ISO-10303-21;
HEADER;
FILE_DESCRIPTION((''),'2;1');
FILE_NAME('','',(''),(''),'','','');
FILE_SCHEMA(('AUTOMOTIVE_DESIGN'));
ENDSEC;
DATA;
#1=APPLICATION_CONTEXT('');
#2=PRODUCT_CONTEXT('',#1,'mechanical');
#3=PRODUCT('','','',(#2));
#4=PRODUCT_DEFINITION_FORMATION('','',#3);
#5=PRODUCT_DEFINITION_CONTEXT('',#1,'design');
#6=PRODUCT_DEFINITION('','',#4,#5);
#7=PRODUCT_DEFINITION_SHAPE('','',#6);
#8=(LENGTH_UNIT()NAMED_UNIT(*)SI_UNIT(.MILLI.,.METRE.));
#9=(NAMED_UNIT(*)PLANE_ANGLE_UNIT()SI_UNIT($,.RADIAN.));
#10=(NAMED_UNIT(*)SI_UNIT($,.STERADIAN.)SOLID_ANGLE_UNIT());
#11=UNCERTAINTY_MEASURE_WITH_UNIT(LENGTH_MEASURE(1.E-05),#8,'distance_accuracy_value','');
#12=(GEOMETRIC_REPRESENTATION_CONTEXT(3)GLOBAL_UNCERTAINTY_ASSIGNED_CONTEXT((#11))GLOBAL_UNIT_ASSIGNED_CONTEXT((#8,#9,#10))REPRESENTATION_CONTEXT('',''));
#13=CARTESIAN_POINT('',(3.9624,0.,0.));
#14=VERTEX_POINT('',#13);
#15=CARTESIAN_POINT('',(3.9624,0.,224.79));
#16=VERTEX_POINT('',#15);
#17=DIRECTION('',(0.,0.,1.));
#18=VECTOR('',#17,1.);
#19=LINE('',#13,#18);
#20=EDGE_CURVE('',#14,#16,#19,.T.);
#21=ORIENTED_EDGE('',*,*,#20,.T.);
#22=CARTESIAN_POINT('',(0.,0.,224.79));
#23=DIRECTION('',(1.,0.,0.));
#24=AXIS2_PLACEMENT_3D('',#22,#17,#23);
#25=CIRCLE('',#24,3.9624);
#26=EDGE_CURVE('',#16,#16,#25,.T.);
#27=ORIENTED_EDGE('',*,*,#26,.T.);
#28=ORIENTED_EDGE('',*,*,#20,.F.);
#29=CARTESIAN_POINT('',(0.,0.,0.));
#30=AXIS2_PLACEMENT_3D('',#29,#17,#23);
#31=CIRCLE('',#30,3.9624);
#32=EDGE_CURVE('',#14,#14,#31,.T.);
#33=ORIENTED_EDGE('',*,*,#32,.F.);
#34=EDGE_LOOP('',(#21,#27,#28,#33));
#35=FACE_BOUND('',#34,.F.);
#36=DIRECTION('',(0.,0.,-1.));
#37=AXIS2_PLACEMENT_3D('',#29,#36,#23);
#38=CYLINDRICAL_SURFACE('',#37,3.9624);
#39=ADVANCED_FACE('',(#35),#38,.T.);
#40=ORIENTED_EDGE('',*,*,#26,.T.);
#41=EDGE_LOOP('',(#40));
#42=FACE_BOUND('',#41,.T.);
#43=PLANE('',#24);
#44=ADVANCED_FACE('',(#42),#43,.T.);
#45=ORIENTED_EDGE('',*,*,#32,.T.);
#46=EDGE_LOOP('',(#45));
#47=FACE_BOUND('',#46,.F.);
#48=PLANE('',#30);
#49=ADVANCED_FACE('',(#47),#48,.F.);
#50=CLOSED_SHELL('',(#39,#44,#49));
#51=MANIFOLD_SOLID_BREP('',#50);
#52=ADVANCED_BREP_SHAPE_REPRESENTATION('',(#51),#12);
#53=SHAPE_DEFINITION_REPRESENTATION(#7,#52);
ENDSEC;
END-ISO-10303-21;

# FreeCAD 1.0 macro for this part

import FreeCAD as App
import Part
import Sketcher
from FreeCAD import Vector
Q = App.Units.Quantity

doc = App.newDocument("Part")
body = doc.addObject("PartDesign::Body", "Body")

# Sketch on XY plane
sketch1 = body.newObject("Sketcher::SketchObject", "Sketch")
sketch1.AttachmentSupport = (doc.getObject("XY_Plane"), [""])
sketch1.MapMode = "FlatFace"
sketch1.addGeometry(Part.Circle(Vector(0, 0, 0), Vector(0, 0, 1), 3.9624), False)
sketch1.addConstraint(Sketcher.Constraint("Coincident", 0, 3, -1, 1))
sketch1.addConstraint(Sketcher.Constraint("Diameter", 0, Q("0.312 in")))
pad1 = body.newObject("PartDesign::Pad", "Pad")
pad1.Profile = sketch1
pad1.Length = Q("8.85 in")

doc.recompute()
